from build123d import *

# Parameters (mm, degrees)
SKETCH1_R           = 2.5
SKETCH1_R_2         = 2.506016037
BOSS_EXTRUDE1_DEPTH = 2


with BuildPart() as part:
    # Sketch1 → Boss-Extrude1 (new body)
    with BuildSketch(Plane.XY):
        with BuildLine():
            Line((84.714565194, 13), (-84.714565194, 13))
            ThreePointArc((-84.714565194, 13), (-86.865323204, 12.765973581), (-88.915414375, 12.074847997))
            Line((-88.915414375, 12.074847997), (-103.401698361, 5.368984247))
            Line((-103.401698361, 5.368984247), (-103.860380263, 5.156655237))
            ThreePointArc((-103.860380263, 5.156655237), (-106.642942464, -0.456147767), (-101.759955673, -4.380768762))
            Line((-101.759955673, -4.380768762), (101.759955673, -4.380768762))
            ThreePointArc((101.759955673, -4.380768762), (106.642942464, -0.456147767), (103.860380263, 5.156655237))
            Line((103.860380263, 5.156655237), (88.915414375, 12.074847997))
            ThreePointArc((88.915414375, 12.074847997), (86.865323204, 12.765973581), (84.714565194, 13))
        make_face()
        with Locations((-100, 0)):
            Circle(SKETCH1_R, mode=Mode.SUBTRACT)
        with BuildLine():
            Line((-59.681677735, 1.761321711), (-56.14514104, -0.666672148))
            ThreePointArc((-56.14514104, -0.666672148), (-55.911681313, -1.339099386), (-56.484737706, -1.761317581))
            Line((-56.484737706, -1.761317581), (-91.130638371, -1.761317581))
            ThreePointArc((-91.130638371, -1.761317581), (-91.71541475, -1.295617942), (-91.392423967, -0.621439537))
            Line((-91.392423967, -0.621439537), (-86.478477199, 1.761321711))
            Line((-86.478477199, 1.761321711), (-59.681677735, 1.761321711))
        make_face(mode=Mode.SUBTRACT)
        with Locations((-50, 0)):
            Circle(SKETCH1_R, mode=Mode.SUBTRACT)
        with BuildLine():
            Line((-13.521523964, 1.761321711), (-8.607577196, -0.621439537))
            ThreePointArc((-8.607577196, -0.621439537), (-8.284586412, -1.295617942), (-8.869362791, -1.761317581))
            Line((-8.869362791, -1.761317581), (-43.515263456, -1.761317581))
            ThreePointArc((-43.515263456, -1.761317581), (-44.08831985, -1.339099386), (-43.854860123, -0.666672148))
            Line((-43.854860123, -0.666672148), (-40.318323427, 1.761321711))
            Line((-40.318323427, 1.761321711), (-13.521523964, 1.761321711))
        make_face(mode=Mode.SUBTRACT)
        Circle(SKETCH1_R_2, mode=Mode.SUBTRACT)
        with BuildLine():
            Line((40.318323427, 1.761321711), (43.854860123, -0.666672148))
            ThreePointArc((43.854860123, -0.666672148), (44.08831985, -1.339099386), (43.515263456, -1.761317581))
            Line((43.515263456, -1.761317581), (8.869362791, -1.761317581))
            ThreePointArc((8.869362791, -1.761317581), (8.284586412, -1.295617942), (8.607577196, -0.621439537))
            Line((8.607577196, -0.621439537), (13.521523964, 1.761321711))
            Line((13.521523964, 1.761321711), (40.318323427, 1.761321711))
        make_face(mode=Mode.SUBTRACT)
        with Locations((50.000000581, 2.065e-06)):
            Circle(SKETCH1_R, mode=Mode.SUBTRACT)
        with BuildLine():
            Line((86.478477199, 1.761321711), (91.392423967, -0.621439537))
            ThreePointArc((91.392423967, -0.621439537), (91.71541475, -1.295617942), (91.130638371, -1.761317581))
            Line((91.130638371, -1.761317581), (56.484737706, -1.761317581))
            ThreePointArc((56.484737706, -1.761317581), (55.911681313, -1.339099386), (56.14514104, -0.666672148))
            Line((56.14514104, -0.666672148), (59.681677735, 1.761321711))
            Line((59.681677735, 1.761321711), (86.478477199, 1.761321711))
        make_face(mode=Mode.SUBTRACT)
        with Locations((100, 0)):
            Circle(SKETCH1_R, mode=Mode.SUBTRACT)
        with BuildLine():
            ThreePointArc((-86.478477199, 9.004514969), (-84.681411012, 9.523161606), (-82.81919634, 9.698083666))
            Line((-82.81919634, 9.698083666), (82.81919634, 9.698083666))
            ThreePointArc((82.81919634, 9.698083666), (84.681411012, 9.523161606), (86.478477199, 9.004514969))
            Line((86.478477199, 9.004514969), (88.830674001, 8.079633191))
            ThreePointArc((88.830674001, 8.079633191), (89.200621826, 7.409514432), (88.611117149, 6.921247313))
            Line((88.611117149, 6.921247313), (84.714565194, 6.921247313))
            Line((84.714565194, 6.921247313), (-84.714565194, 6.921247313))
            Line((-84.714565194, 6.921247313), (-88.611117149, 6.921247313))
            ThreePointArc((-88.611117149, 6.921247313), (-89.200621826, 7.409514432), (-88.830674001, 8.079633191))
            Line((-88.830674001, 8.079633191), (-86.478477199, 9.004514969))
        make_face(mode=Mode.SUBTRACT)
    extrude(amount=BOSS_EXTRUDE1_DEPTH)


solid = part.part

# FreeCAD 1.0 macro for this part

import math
import FreeCAD as App
import Part
import Sketcher

V = App.Vector

doc = App.newDocument("Part")
body = doc.addObject("PartDesign::Body", "Body")

# Sketch on XY plane
sketch1 = doc.addObject("Sketcher::SketchObject", "Sketch")
body.addObject(sketch1)
sketch1.AttachmentSupport = (doc.XY_Plane, [""])
sketch1.MapMode = "FlatFace"
sketch1.addGeometry(Part.LineSegment(V(84.714565, 13, 0), V(-84.714565, 13, 0)), False)
sketch1.addGeometry(Part.ArcOfCircle(Part.Circle(V(-84.714565, 3, 0), V(0, 0, 1), 10), math.radians(90), math.radians(114.839949)), False)
sketch1.addGeometry(Part.LineSegment(V(-88.915414, 12.074848, 0), V(-103.401698, 5.368984, 0)), False)
sketch1.addGeometry(Part.LineSegment(V(-103.401698, 5.368984, 0), V(-103.86038, 5.156655, 0)), False)
sketch1.addGeometry(Part.ArcOfCircle(Part.Circle(V(-101.759956, 0.619231, 0), V(0, 0, 1), 5), math.radians(114.839949), math.radians(270)), False)
sketch1.addGeometry(Part.LineSegment(V(-101.759956, -4.380769, 0), V(101.759956, -4.380769, 0)), False)
sketch1.addGeometry(Part.ArcOfCircle(Part.Circle(V(101.759956, 0.619231, 0), V(0, 0, 1), 5), math.radians(-90), math.radians(65.160051)), False)
sketch1.addGeometry(Part.LineSegment(V(103.86038, 5.156655, 0), V(88.915414, 12.074848, 0)), False)
sketch1.addGeometry(Part.ArcOfCircle(Part.Circle(V(84.714565, 3, 0), V(0, 0, 1), 10), math.radians(65.160051), math.radians(90)), False)
sketch1.addGeometry(Part.Circle(V(-100, 0, 0), V(0, 0, 1), 2.5), False)
sketch1.addGeometry(Part.LineSegment(V(-86.478477, 1.761322, 0), V(-59.681678, 1.761322, 0)), False)
sketch1.addGeometry(Part.LineSegment(V(-59.681678, 1.761322, 0), V(-56.145141, -0.666672, 0)), False)
sketch1.addGeometry(Part.ArcOfCircle(Part.Circle(V(-56.484738, -1.161318, 0), V(0, 0, 1), 0.6), math.radians(-90), math.radians(55.528624)), False)
sketch1.addGeometry(Part.LineSegment(V(-56.484738, -1.761318, 0), V(-91.130638, -1.761318, 0)), False)
sketch1.addGeometry(Part.ArcOfCircle(Part.Circle(V(-91.130638, -1.161318, 0), V(0, 0, 1), 0.6), math.radians(115.868638), math.radians(270)), False)
sketch1.addGeometry(Part.LineSegment(V(-91.392424, -0.62144, 0), V(-86.478477, 1.761322, 0)), False)
sketch1.addGeometry(Part.Circle(V(-50, 0, 0), V(0, 0, 1), 2.5), False)
sketch1.addGeometry(Part.LineSegment(V(-40.318323, 1.761322, 0), V(-13.521524, 1.761322, 0)), False)
sketch1.addGeometry(Part.LineSegment(V(-13.521524, 1.761322, 0), V(-8.607577, -0.62144, 0)), False)
sketch1.addGeometry(Part.ArcOfCircle(Part.Circle(V(-8.869363, -1.161318, 0), V(0, 0, 1), 0.6), math.radians(-90), math.radians(64.131362)), False)
sketch1.addGeometry(Part.LineSegment(V(-8.869363, -1.761318, 0), V(-43.515263, -1.761318, 0)), False)
sketch1.addGeometry(Part.ArcOfCircle(Part.Circle(V(-43.515263, -1.161318, 0), V(0, 0, 1), 0.6), math.radians(124.471376), math.radians(270)), False)
sketch1.addGeometry(Part.LineSegment(V(-43.85486, -0.666672, 0), V(-40.318323, 1.761322, 0)), False)
sketch1.addGeometry(Part.Circle(V(0, 0, 0), V(0, 0, 1), 2.506016), False)
sketch1.addGeometry(Part.LineSegment(V(13.521524, 1.761322, 0), V(40.318323, 1.761322, 0)), False)
sketch1.addGeometry(Part.LineSegment(V(40.318323, 1.761322, 0), V(43.85486, -0.666672, 0)), False)
sketch1.addGeometry(Part.ArcOfCircle(Part.Circle(V(43.515263, -1.161318, 0), V(0, 0, 1), 0.6), math.radians(-90), math.radians(55.528624)), False)
sketch1.addGeometry(Part.LineSegment(V(43.515263, -1.761318, 0), V(8.869363, -1.761318, 0)), False)
sketch1.addGeometry(Part.ArcOfCircle(Part.Circle(V(8.869363, -1.161318, 0), V(0, 0, 1), 0.6), math.radians(115.868638), math.radians(270)), False)
sketch1.addGeometry(Part.LineSegment(V(8.607577, -0.62144, 0), V(13.521524, 1.761322, 0)), False)
sketch1.addGeometry(Part.Circle(V(50.000001, 0.000002, 0), V(0, 0, 1), 2.5), False)
sketch1.addGeometry(Part.LineSegment(V(59.681678, 1.761322, 0), V(86.478477, 1.761322, 0)), False)
sketch1.addGeometry(Part.LineSegment(V(86.478477, 1.761322, 0), V(91.392424, -0.62144, 0)), False)
sketch1.addGeometry(Part.ArcOfCircle(Part.Circle(V(91.130638, -1.161318, 0), V(0, 0, 1), 0.6), math.radians(-90), math.radians(64.131362)), False)
sketch1.addGeometry(Part.LineSegment(V(91.130638, -1.761318, 0), V(56.484738, -1.761318, 0)), False)
sketch1.addGeometry(Part.ArcOfCircle(Part.Circle(V(56.484738, -1.161318, 0), V(0, 0, 1), 0.6), math.radians(124.471376), math.radians(270)), False)
sketch1.addGeometry(Part.LineSegment(V(56.145141, -0.666672, 0), V(59.681678, 1.761322, 0)), False)
sketch1.addGeometry(Part.Circle(V(100, 0, 0), V(0, 0, 1), 2.5), False)
sketch1.addGeometry(Part.LineSegment(V(-88.830674, 8.079633, 0), V(-86.478477, 9.004515, 0)), False)
sketch1.addGeometry(Part.ArcOfCircle(Part.Circle(V(-82.819196, -0.301916, 0), V(0, 0, 1), 10), math.radians(90), math.radians(111.46471)), False)
sketch1.addGeometry(Part.LineSegment(V(-82.819196, 9.698084, 0), V(82.819196, 9.698084, 0)), False)
sketch1.addGeometry(Part.ArcOfCircle(Part.Circle(V(82.819196, -0.301916, 0), V(0, 0, 1), 10), math.radians(68.53529), math.radians(90)), False)
sketch1.addGeometry(Part.LineSegment(V(86.478477, 9.004515, 0), V(88.830674, 8.079633, 0)), False)
sketch1.addGeometry(Part.ArcOfCircle(Part.Circle(V(88.611117, 7.521247, 0), V(0, 0, 1), 0.6), math.radians(-90), math.radians(68.53529)), False)
sketch1.addGeometry(Part.LineSegment(V(88.611117, 6.921247, 0), V(-88.611117, 6.921247, 0)), False)
sketch1.addGeometry(Part.ArcOfCircle(Part.Circle(V(-88.611117, 7.521247, 0), V(0, 0, 1), 0.6), math.radians(111.46471), math.radians(270)), False)
sketch1.addConstraint(Sketcher.Constraint("Tangent", 0, 2, 1, 1))
sketch1.addConstraint(Sketcher.Constraint("Tangent", 1, 2, 2, 1))
sketch1.addConstraint(Sketcher.Constraint("Coincident", 2, 2, 3, 1))
sketch1.addConstraint(Sketcher.Constraint("Tangent", 3, 2, 4, 1))
sketch1.addConstraint(Sketcher.Constraint("Tangent", 4, 2, 5, 1))
sketch1.addConstraint(Sketcher.Constraint("Tangent", 5, 2, 6, 1))
sketch1.addConstraint(Sketcher.Constraint("Tangent", 6, 2, 7, 1))
sketch1.addConstraint(Sketcher.Constraint("Tangent", 7, 2, 8, 1))
sketch1.addConstraint(Sketcher.Constraint("Tangent", 8, 2, 0, 1))
sketch1.addConstraint(Sketcher.Constraint("Coincident", 10, 2, 11, 1))
sketch1.addConstraint(Sketcher.Constraint("Tangent", 11, 2, 12, 2))
sketch1.addConstraint(Sketcher.Constraint("Tangent", 12, 1, 13, 1))
sketch1.addConstraint(Sketcher.Constraint("Tangent", 13, 2, 14, 2))
sketch1.addConstraint(Sketcher.Constraint("Tangent", 14, 1, 15, 1))
sketch1.addConstraint(Sketcher.Constraint("Coincident", 15, 2, 10, 1))
sketch1.addConstraint(Sketcher.Constraint("Coincident", 17, 2, 18, 1))
sketch1.addConstraint(Sketcher.Constraint("Tangent", 18, 2, 19, 2))
sketch1.addConstraint(Sketcher.Constraint("Tangent", 19, 1, 20, 1))
sketch1.addConstraint(Sketcher.Constraint("Tangent", 20, 2, 21, 2))
sketch1.addConstraint(Sketcher.Constraint("Tangent", 21, 1, 22, 1))
sketch1.addConstraint(Sketcher.Constraint("Coincident", 22, 2, 17, 1))
sketch1.addConstraint(Sketcher.Constraint("Coincident", 24, 2, 25, 1))
sketch1.addConstraint(Sketcher.Constraint("Tangent", 25, 2, 26, 2))
sketch1.addConstraint(Sketcher.Constraint("Tangent", 26, 1, 27, 1))
sketch1.addConstraint(Sketcher.Constraint("Tangent", 27, 2, 28, 2))
sketch1.addConstraint(Sketcher.Constraint("Tangent", 28, 1, 29, 1))
sketch1.addConstraint(Sketcher.Constraint("Coincident", 29, 2, 24, 1))
sketch1.addConstraint(Sketcher.Constraint("Coincident", 31, 2, 32, 1))
sketch1.addConstraint(Sketcher.Constraint("Tangent", 32, 2, 33, 2))
sketch1.addConstraint(Sketcher.Constraint("Tangent", 33, 1, 34, 1))
sketch1.addConstraint(Sketcher.Constraint("Tangent", 34, 2, 35, 2))
sketch1.addConstraint(Sketcher.Constraint("Tangent", 35, 1, 36, 1))
sketch1.addConstraint(Sketcher.Constraint("Coincident", 36, 2, 31, 1))
sketch1.addConstraint(Sketcher.Constraint("Tangent", 38, 2, 39, 2))
sketch1.addConstraint(Sketcher.Constraint("Tangent", 39, 1, 40, 1))
sketch1.addConstraint(Sketcher.Constraint("Tangent", 40, 2, 41, 2))
sketch1.addConstraint(Sketcher.Constraint("Tangent", 41, 1, 42, 1))
sketch1.addConstraint(Sketcher.Constraint("Tangent", 42, 2, 43, 2))
sketch1.addConstraint(Sketcher.Constraint("Tangent", 43, 1, 44, 1))
sketch1.addConstraint(Sketcher.Constraint("Tangent", 44, 2, 45, 2))
sketch1.addConstraint(Sketcher.Constraint("Tangent", 45, 1, 38, 1))
sketch1.addConstraint(Sketcher.Constraint("Horizontal", 0))
sketch1.addConstraint(Sketcher.Constraint("Horizontal", 5))
sketch1.addConstraint(Sketcher.Constraint("Horizontal", 10))
sketch1.addConstraint(Sketcher.Constraint("Horizontal", 13))
sketch1.addConstraint(Sketcher.Constraint("Horizontal", 17))
sketch1.addConstraint(Sketcher.Constraint("Horizontal", 20))
sketch1.addConstraint(Sketcher.Constraint("Horizontal", 24))
sketch1.addConstraint(Sketcher.Constraint("Horizontal", 27))
sketch1.addConstraint(Sketcher.Constraint("Horizontal", 31))
sketch1.addConstraint(Sketcher.Constraint("Horizontal", 34))
sketch1.addConstraint(Sketcher.Constraint("Horizontal", 40))
sketch1.addConstraint(Sketcher.Constraint("Horizontal", 44))
sketch1.addConstraint(Sketcher.Constraint("Coincident", 23, 3, -1, 1))
sketch1.addConstraint(Sketcher.Constraint("Equal", 4, 6))
sketch1.addConstraint(Sketcher.Constraint("Equal", 1, 8))
sketch1.addConstraint(Sketcher.Constraint("Equal", 12, 14))
sketch1.addConstraint(Sketcher.Constraint("Equal", 9, 16))
sketch1.addConstraint(Sketcher.Constraint("Equal", 14, 19))
sketch1.addConstraint(Sketcher.Constraint("Equal", 19, 21))
sketch1.addConstraint(Sketcher.Constraint("Equal", 21, 26))
sketch1.addConstraint(Sketcher.Constraint("Equal", 26, 28))
sketch1.addConstraint(Sketcher.Constraint("Equal", 16, 30))
sketch1.addConstraint(Sketcher.Constraint("Equal", 28, 33))
sketch1.addConstraint(Sketcher.Constraint("Equal", 33, 35))
sketch1.addConstraint(Sketcher.Constraint("Equal", 30, 37))
sketch1.addConstraint(Sketcher.Constraint("Equal", 8, 39))
sketch1.addConstraint(Sketcher.Constraint("Equal", 39, 41))
sketch1.addConstraint(Sketcher.Constraint("Equal", 35, 43))
sketch1.addConstraint(Sketcher.Constraint("Equal", 43, 45))
sketch1.addConstraint(Sketcher.Constraint("Symmetric", 16, 3, 30, 3, -1, 1))
sketch1.addConstraint(Sketcher.Constraint("Symmetric", 9, 3, 37, 3, -1, 1))
sketch1.addConstraint(Sketcher.Constraint("Symmetric", 21, 3, 26, 3, -2))
sketch1.addConstraint(Sketcher.Constraint("Symmetric", 14, 3, 33, 3, -2))
sketch1.addConstraint(Sketcher.Constraint("Symmetric", 3, 2, 6, 2, -2))
sketch1.addConstraint(Sketcher.Constraint("Symmetric", 22, 2, 24, 2, -2))
sketch1.addConstraint(Sketcher.Constraint("Symmetric", 18, 2, 28, 1, -2))
sketch1.addConstraint(Sketcher.Constraint("Symmetric", 15, 2, 31, 2, -2))
sketch1.addConstraint(Sketcher.Constraint("Symmetric", 11, 2, 35, 1, -2))
sketch1.addConstraint(Sketcher.Constraint("Symmetric", 38, 2, 41, 1, -2))
sketch1.addConstraint(Sketcher.Constraint("PointOnObject", 9, 3, -1))
sketch1.addConstraint(Sketcher.Constraint("PointOnObject", 16, 3, -1))
sketch1.addConstraint(Sketcher.Constraint("Parallel", 2, 3))
sketch1.addConstraint(Sketcher.Constraint("Parallel", 11, 25))
sketch1.addConstraint(Sketcher.Constraint("Parallel", 15, 29))
sketch1.addConstraint(Sketcher.Constraint("Horizontal", 14, 3, 19, 3))
sketch1.addConstraint(Sketcher.Constraint("Horizontal", 15, 2, 17, 2))
sketch1.addConstraint(Sketcher.Constraint("Vertical", 15, 2, 38, 2))
sketch1.addConstraint(Sketcher.Constraint("Equal", 10, 17))
sketch1.addConstraint(Sketcher.Constraint("Diameter", 9, 5.0))
sketch1.addConstraint(Sketcher.Constraint("Radius", 1, 10.0))
sketch1.addConstraint(Sketcher.Constraint("Radius", 4, 5.0))
sketch1.addConstraint(Sketcher.Constraint("Radius", 12, 0.6))
sketch1.addConstraint(Sketcher.Constraint("DistanceY", -1, 1, 1, 3, 3.0))
sketch1.addConstraint(Sketcher.Constraint("DistanceX", 9, 3, -1, 1, 100.0))
sketch1.addConstraint(Sketcher.Constraint("DistanceX", 16, 3, -1, 1, 50.0))
sketch1.addConstraint(Sketcher.Constraint("Diameter", 23, 5.012032))
sketch1.addConstraint(Sketcher.Constraint("DistanceX", 10, 1, 10, 2, 26.796799))
sketch1.addConstraint(Sketcher.Constraint("DistanceX", 13, 2, 13, 1, 34.645901))
sketch1.addConstraint(Sketcher.Constraint("DistanceX", 0, 2, 0, 1, 169.42913))
sketch1.addConstraint(Sketcher.Constraint("DistanceX", 5, 1, 5, 2, 203.519911))
sketch1.addConstraint(Sketcher.Constraint("DistanceX", 2, 2, -1, 1, 103.401698))
sketch1.addConstraint(Sketcher.Constraint("DistanceX", 40, 1, 40, 2, 165.638393))
sketch1.addConstraint(Sketcher.Constraint("DistanceX", 44, 2, 44, 1, 177.222234))
sketch1.addConstraint(Sketcher.Constraint("DistanceY", -1, 1, 4, 3, 0.619231))
sketch1.addConstraint(Sketcher.Constraint("DistanceX", 14, 3, -1, 1, 91.130638))
sketch1.addConstraint(Sketcher.Constraint("DistanceY", -1, 1, 10, 2, 1.761322))
sketch1.addConstraint(Sketcher.Constraint("DistanceX", 11, 2, -1, 1, 56.145141))
sketch1.addConstraint(Sketcher.Constraint("DistanceY", 14, 1, -1, 1, 0.62144))
sketch1.addConstraint(Sketcher.Constraint("DistanceX", 21, 1, -1, 1, 43.85486))
sketch1.addConstraint(Sketcher.Constraint("DistanceY", 39, 3, -1, 1, 0.301916))
pad1 = doc.addObject("PartDesign::Pad", "Pad")
body.addObject(pad1)
pad1.Profile = sketch1
pad1.Length = 2

doc.recompute()
